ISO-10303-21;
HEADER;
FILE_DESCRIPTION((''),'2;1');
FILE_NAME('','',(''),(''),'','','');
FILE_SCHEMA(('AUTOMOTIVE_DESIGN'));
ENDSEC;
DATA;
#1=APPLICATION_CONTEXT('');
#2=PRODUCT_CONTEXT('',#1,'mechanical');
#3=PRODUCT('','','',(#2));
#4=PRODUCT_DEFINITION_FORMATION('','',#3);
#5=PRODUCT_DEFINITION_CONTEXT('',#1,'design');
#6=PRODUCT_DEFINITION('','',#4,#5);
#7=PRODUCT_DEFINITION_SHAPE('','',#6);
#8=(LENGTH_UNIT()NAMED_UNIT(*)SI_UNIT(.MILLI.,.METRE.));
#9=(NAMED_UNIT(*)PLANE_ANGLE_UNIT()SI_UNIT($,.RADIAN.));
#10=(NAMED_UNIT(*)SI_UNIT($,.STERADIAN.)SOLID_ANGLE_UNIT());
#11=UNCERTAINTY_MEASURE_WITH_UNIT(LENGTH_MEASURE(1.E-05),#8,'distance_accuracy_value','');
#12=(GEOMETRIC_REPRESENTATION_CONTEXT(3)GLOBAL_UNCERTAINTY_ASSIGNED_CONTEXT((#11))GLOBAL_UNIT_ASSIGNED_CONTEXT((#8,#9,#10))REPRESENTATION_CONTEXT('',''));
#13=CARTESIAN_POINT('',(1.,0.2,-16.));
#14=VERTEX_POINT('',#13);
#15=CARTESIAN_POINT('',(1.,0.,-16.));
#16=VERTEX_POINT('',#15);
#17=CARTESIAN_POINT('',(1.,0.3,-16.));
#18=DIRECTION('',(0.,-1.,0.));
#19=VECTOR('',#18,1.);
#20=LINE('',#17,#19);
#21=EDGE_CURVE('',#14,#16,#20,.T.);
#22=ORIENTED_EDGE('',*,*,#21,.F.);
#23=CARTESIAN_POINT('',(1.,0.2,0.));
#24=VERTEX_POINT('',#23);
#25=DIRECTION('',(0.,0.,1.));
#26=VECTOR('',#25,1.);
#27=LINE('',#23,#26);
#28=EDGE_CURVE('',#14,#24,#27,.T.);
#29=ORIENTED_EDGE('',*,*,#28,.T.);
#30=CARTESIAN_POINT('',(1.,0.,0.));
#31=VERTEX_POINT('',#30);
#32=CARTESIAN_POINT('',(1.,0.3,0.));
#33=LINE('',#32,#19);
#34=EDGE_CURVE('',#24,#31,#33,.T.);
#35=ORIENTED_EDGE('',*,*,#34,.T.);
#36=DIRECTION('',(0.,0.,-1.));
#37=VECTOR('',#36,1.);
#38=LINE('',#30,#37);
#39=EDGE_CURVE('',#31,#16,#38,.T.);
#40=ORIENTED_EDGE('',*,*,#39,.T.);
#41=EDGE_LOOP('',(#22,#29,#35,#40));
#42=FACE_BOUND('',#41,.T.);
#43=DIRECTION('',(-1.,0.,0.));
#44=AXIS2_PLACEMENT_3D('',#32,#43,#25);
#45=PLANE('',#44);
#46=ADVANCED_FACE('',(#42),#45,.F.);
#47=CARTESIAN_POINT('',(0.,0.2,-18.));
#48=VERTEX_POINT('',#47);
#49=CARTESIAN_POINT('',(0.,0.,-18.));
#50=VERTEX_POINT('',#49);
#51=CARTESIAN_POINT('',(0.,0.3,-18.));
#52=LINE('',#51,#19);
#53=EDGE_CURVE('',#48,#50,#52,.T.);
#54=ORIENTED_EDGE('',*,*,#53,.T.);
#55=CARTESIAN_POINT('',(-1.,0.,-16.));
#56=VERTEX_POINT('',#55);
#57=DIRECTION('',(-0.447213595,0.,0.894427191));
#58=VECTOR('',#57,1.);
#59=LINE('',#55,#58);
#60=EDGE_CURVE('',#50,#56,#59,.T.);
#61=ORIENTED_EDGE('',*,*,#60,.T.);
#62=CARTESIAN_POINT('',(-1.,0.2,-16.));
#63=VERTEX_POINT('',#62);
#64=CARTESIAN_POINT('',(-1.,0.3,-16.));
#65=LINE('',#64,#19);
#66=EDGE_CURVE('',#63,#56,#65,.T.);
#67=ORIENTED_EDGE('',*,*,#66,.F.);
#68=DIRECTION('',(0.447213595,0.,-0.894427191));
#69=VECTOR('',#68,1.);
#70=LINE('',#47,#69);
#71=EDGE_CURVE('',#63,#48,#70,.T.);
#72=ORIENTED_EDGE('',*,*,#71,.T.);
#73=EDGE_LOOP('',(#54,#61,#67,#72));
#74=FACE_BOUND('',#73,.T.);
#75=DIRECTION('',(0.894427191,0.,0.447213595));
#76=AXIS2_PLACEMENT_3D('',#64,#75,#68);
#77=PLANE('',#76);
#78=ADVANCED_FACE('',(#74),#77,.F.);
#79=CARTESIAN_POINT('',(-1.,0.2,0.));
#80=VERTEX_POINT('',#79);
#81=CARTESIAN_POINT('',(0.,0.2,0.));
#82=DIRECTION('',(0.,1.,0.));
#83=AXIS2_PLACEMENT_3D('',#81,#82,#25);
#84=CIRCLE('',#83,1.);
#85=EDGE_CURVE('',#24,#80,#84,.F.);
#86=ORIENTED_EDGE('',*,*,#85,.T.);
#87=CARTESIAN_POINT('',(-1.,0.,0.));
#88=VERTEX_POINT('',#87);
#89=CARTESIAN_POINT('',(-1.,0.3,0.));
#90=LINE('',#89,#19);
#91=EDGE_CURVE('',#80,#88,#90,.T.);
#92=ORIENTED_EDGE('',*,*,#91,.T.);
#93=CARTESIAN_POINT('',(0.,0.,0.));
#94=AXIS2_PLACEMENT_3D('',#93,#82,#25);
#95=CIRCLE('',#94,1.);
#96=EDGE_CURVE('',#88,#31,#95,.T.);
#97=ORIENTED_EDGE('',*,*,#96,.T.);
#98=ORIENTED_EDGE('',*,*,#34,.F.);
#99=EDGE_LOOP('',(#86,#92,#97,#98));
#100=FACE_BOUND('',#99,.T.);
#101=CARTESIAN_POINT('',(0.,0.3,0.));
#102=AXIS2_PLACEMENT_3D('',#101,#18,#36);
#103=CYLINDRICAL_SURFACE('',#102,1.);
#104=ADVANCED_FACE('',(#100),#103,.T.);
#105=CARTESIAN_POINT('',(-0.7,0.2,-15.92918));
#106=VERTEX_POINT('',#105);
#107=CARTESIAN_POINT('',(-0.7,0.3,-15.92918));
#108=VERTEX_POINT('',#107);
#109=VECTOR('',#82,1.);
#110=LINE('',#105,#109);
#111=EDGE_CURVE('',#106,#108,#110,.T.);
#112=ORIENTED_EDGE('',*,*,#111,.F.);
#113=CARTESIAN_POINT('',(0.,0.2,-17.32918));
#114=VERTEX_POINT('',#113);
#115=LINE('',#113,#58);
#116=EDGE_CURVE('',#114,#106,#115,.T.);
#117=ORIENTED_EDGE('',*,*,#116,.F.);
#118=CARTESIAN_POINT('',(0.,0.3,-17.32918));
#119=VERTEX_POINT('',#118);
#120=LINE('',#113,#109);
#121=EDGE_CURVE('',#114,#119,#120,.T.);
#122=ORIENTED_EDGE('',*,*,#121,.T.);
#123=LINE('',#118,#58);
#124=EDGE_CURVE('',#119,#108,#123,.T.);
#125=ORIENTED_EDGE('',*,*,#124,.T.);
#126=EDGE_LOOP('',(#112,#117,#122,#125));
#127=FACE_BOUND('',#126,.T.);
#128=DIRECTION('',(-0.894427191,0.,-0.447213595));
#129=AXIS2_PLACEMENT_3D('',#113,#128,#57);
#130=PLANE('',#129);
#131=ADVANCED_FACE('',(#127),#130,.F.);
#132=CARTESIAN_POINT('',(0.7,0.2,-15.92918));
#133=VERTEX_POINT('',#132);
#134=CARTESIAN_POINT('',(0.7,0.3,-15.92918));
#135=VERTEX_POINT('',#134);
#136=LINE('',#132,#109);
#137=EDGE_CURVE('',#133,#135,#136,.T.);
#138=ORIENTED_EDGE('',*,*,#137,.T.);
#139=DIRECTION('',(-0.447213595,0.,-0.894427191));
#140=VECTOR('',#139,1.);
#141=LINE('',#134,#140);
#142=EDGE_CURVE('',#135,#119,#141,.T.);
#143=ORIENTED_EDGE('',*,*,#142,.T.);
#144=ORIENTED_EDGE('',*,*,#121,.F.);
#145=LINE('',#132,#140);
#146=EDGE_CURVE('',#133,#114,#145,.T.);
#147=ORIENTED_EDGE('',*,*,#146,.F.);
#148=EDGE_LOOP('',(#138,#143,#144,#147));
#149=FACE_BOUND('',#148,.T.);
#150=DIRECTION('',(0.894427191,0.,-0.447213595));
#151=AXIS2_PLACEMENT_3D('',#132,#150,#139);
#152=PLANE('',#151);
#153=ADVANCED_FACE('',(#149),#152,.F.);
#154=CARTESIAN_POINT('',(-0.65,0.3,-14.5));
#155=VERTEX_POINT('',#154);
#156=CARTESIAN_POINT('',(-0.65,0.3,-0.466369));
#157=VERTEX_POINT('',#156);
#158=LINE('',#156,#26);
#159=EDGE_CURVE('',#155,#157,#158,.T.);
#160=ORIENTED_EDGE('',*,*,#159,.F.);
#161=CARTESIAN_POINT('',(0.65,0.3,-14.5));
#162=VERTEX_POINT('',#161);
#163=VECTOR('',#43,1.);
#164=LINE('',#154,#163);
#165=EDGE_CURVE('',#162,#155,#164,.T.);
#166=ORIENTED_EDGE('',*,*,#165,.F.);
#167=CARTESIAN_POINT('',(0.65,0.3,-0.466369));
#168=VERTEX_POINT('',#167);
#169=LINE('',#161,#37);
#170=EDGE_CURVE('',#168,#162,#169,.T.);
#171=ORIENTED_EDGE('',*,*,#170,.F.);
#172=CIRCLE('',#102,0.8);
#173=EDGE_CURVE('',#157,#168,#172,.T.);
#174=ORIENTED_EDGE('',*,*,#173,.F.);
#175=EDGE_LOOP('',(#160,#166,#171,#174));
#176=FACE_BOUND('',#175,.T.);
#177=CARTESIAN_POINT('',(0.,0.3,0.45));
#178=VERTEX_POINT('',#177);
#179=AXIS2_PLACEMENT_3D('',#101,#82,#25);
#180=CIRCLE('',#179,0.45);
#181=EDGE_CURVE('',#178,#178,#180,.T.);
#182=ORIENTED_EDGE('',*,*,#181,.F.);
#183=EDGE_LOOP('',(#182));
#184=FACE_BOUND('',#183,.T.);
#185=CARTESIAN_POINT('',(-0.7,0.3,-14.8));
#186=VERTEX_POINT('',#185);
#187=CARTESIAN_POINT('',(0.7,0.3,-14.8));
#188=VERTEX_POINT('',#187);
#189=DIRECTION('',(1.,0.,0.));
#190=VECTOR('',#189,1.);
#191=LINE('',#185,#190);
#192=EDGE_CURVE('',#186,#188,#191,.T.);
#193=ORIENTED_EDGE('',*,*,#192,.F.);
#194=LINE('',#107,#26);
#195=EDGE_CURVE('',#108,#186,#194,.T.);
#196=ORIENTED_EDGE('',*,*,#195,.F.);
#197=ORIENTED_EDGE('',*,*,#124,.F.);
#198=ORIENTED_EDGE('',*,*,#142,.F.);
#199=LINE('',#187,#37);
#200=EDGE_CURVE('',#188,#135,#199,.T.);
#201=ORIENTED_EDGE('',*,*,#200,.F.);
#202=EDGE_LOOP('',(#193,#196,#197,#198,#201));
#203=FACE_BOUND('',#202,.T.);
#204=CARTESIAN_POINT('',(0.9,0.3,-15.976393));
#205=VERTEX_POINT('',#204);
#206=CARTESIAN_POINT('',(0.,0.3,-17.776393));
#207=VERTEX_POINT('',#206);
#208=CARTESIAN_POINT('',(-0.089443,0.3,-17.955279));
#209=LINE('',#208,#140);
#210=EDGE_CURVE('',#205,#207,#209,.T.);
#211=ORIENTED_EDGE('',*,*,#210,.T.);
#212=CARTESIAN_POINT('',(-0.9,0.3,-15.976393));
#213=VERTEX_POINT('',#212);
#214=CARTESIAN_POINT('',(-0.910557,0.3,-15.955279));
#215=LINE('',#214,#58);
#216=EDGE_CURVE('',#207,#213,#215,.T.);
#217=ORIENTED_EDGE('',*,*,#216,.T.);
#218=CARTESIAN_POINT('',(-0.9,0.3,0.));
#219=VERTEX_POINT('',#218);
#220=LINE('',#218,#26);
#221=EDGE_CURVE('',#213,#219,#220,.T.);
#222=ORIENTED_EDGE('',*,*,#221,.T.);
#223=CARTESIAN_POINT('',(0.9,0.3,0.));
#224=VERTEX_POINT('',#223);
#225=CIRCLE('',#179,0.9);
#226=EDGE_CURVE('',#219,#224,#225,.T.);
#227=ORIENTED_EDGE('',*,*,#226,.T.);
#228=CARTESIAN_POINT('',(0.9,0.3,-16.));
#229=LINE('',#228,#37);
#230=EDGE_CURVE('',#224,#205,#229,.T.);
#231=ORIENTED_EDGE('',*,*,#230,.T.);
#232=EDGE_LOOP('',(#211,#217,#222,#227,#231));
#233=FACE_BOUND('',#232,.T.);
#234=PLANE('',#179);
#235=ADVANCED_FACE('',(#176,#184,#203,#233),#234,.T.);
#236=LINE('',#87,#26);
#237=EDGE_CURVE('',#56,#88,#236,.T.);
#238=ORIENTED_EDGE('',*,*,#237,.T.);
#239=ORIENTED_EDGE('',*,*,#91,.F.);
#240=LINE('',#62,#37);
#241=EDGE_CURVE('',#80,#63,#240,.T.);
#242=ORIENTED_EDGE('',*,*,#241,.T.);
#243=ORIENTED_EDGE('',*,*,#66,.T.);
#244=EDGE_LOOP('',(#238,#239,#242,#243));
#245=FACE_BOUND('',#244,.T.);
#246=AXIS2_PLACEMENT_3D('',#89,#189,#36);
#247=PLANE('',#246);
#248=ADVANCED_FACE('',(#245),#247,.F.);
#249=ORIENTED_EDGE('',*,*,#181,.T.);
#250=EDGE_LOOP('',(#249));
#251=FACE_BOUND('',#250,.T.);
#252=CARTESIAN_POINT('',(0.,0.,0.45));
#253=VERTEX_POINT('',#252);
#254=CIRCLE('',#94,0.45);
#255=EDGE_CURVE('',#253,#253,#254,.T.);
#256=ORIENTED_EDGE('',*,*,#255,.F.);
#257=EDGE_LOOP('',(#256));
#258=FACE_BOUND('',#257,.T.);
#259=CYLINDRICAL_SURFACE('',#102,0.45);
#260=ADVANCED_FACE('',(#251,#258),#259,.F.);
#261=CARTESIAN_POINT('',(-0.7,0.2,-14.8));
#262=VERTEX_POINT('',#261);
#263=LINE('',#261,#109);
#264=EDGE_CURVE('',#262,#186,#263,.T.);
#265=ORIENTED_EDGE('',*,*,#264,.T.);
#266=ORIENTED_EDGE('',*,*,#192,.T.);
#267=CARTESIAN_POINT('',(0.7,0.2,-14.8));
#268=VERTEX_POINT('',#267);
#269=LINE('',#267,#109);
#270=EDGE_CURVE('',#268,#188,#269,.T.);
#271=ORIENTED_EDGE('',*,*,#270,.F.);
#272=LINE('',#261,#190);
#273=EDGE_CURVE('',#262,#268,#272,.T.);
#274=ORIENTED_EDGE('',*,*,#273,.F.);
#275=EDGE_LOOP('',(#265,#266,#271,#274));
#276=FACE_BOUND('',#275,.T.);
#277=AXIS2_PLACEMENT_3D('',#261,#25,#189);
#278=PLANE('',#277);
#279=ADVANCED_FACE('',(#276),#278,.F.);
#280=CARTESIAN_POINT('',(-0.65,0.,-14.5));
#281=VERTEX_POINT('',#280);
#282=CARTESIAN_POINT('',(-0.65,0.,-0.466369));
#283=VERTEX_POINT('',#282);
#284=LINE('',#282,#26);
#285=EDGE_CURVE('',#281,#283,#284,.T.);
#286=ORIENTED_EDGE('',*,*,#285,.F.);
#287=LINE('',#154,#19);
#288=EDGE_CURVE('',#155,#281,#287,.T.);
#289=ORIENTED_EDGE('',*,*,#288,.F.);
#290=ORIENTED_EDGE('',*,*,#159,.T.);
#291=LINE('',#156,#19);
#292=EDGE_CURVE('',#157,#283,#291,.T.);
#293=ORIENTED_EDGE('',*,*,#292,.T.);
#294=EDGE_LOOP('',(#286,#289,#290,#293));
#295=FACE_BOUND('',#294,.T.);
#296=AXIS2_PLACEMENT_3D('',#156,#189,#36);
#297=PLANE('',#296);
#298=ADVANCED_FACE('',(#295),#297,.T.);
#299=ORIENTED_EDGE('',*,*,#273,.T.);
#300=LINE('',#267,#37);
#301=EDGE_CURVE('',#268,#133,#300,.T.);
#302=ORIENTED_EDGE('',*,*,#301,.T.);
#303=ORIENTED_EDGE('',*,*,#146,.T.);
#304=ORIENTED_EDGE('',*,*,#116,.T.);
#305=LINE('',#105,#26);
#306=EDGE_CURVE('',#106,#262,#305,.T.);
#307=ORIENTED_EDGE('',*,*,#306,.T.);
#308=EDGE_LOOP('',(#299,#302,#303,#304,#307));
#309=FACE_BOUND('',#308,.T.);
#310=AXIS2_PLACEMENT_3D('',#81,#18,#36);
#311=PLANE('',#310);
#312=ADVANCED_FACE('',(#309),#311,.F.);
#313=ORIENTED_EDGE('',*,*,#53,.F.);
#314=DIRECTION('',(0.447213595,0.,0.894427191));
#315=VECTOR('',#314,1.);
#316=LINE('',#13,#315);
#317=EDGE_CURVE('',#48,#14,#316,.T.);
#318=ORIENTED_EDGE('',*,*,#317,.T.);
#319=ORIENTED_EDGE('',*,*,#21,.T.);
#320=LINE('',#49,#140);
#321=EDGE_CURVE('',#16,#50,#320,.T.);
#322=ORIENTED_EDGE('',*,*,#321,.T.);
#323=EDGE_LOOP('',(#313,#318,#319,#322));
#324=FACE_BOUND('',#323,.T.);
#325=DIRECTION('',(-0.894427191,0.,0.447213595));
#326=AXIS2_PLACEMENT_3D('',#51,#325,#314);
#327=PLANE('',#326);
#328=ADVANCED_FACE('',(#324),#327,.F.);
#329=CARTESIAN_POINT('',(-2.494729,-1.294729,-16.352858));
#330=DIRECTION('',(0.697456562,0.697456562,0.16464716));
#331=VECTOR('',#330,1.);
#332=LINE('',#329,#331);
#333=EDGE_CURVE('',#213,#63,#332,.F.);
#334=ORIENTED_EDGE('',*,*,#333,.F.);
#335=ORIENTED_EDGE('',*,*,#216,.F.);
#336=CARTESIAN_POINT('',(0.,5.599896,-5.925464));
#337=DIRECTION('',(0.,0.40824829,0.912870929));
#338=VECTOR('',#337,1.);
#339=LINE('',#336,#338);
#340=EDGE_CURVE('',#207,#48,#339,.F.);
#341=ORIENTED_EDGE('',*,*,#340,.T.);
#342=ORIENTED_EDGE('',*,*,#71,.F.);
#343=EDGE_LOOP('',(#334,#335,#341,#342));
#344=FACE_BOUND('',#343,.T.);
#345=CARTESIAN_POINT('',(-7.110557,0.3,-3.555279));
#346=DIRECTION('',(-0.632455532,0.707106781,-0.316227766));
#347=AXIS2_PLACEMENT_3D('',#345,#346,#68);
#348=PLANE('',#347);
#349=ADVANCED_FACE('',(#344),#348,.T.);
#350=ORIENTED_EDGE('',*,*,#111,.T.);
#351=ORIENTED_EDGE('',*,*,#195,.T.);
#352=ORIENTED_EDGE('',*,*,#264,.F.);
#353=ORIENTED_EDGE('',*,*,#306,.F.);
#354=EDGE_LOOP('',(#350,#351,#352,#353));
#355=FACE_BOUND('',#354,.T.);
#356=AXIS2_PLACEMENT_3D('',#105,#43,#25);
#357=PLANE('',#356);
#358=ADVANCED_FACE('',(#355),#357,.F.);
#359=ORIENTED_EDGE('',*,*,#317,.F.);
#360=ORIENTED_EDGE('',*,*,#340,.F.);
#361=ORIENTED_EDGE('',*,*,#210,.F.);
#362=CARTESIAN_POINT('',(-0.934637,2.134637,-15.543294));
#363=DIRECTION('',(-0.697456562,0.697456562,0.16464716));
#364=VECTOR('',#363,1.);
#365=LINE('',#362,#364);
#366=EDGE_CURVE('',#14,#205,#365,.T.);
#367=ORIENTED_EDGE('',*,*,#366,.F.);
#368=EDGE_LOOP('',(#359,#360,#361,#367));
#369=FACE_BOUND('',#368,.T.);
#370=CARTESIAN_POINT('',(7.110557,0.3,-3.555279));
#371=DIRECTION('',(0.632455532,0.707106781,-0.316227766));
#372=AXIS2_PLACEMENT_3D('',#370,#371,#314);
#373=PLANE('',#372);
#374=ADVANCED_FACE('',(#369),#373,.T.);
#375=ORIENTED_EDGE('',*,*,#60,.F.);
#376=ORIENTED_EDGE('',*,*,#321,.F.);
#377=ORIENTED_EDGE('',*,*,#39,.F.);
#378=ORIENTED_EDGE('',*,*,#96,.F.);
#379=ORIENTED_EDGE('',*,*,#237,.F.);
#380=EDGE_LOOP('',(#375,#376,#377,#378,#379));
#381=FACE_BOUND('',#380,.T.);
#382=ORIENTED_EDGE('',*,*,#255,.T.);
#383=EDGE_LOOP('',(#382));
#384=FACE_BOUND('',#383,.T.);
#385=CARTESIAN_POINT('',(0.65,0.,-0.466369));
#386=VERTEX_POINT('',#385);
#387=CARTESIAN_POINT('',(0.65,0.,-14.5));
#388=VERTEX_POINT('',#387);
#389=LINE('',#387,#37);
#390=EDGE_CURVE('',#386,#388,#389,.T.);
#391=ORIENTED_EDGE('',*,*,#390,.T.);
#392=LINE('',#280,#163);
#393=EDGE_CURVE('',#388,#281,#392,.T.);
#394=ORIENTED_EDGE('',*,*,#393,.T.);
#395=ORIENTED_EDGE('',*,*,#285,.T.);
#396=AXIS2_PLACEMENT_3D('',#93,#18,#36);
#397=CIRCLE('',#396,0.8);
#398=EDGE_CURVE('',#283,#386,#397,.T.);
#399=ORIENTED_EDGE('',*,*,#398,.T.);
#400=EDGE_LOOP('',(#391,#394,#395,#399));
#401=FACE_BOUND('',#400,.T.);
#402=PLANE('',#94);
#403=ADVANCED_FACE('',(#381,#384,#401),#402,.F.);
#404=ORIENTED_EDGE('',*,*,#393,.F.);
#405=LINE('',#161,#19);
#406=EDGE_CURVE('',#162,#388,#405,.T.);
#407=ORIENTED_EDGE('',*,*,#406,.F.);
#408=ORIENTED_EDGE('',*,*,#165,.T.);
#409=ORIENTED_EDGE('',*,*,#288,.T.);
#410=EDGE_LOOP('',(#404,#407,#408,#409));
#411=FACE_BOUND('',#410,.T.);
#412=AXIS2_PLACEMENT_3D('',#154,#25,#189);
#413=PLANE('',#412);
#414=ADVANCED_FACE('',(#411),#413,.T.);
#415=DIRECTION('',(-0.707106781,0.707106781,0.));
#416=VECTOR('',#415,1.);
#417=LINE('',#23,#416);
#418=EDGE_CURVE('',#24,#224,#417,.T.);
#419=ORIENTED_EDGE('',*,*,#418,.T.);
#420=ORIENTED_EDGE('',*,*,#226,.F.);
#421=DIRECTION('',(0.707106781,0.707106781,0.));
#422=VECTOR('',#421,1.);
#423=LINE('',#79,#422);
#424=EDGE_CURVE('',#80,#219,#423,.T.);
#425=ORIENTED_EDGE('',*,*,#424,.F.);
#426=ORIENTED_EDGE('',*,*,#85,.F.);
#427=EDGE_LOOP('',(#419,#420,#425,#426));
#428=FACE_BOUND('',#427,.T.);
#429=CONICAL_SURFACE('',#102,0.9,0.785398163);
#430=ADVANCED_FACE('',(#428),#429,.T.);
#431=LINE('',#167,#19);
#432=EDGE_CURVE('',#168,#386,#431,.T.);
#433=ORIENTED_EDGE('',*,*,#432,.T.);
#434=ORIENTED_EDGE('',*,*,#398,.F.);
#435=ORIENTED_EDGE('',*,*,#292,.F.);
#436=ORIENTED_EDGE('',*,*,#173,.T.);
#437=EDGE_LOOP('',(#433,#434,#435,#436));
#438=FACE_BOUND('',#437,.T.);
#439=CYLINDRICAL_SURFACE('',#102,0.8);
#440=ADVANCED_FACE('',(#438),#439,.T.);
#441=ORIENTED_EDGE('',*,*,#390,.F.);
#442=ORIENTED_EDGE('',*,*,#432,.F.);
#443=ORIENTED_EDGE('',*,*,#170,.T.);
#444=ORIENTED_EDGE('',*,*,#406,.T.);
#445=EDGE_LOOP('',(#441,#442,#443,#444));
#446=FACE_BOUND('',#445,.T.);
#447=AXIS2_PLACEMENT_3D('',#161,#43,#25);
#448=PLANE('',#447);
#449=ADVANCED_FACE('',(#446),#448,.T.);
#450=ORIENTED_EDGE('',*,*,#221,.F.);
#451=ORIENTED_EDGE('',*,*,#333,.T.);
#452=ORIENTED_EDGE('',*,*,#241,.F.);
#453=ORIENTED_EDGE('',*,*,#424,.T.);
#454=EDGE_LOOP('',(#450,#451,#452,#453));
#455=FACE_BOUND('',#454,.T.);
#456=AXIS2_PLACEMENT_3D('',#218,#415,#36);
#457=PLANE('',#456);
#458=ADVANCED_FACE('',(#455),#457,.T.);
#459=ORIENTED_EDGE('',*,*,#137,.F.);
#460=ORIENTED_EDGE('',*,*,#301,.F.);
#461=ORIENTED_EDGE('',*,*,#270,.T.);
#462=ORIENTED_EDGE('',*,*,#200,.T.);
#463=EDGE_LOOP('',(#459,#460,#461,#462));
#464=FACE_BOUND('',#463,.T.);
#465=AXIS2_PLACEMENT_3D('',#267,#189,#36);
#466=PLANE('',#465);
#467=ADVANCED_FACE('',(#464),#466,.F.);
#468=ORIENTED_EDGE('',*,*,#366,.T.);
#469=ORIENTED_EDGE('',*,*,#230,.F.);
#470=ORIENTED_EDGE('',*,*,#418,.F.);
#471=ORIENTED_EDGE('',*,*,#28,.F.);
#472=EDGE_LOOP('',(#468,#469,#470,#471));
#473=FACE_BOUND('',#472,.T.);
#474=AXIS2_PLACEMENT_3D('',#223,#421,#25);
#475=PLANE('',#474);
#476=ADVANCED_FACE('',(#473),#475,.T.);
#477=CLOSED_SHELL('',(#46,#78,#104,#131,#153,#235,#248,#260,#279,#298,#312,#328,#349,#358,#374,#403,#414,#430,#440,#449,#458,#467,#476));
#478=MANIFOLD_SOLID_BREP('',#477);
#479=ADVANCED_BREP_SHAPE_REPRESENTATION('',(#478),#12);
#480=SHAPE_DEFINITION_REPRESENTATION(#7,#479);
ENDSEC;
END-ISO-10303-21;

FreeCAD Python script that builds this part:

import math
import FreeCAD as App
import Part
import Sketcher

V = App.Vector


def edges_at(feature, points):
    """Names of the edges that pass closest to the given points."""
    edges = feature.Shape.Edges
    near = lambda p: min(range(len(edges)), key=lambda i: edges[i].distToShape(Part.Vertex(*p))[0])
    return sorted({f"Edge{near(p) + 1}" for p in points})


def add_polygon(sketch, points):
    """Adds a closed chain of lines whose ends are joined by coincident constraints."""
    first, n = sketch.GeometryCount, len(points)
    for a, b in zip(points, points[1:] + points[:1]):
        sketch.addGeometry(Part.LineSegment(App.Vector(*a, 0), App.Vector(*b, 0)), False)
    for i in range(n):
        sketch.addConstraint(Sketcher.Constraint("Coincident", first + i, 2, first + (i + 1) % n, 1))

doc = App.newDocument("Part")
body = doc.addObject("PartDesign::Body", "Body")

sketch1 = body.newObject("Sketcher::SketchObject", "Sketch")
sketch1.AttachmentSupport = (doc.getObject("XZ_Plane"), [""])
sketch1.MapMode = "FlatFace"
sketch1.addGeometry([
    Part.LineSegment(V(-1, -16, 0), V(-1, 0, 0)),
    Part.ArcOfCircle(Part.Circle(V(0, 0, 0), V(0, 0, 1), 1), math.radians(0), math.radians(180)),
    Part.LineSegment(V(1, 0, 0), V(1, -16, 0)),
    Part.LineSegment(V(1, -16, 0), V(0, -18, 0)),
    Part.LineSegment(V(0, -18, 0), V(-1, -16, 0)),
    Part.Circle(V(0, 0, 0), V(0, 0, 1), 0.45),
    Part.LineSegment(V(-0.65, -0.466369, 0), V(-0.65, -14.5, 0)),
    Part.LineSegment(V(-0.65, -14.5, 0), V(0.65, -14.5, 0)),
    Part.LineSegment(V(0.65, -14.5, 0), V(0.65, -0.466369, 0)),
    Part.ArcOfCircle(Part.Circle(V(0, 0, 0), V(0, 0, 1), 0.8), math.radians(-144.340912), math.radians(-35.659088)),
], False)
sketch1.addConstraint([
    Sketcher.Constraint("Tangent", 0, 2, 1, 2),
    Sketcher.Constraint("Tangent", 1, 1, 2, 1),
    Sketcher.Constraint("Coincident", 2, 2, 3, 1),
    Sketcher.Constraint("Coincident", 3, 2, 4, 1),
    Sketcher.Constraint("Coincident", 4, 2, 0, 1),
    Sketcher.Constraint("Coincident", 6, 2, 7, 1),
    Sketcher.Constraint("Coincident", 7, 2, 8, 1),
    Sketcher.Constraint("Coincident", 8, 2, 9, 2),
    Sketcher.Constraint("Coincident", 9, 1, 6, 1),
    Sketcher.Constraint("Vertical", 0),
    Sketcher.Constraint("Vertical", 2),
    Sketcher.Constraint("Vertical", 6),
    Sketcher.Constraint("Horizontal", 7),
    Sketcher.Constraint("Vertical", 8),
    Sketcher.Constraint("Coincident", 1, 3, -1, 1),
    Sketcher.Constraint("Coincident", 5, 3, -1, 1),
    Sketcher.Constraint("Coincident", 9, 3, -1, 1),
    Sketcher.Constraint("PointOnObject", 3, 2, -2),
    Sketcher.Constraint("Horizontal", 2, 2, 4, 2),
    Sketcher.Constraint("Horizontal", 8, 2, 9, 1),
    Sketcher.Constraint("Radius", 1, 1.0),
    Sketcher.Constraint("Diameter", 5, 0.9),
    Sketcher.Constraint("Radius", 9, 0.8),
    Sketcher.Constraint("DistanceY", 0, 1, 0, 2, 16.0),
    Sketcher.Constraint("DistanceX", 7, 1, 7, 2, 1.3),
    Sketcher.Constraint("DistanceY", 3, 2, -1, 1, 18.0),
    Sketcher.Constraint("DistanceY", 6, 2, -1, 1, 14.5),
])
pad1 = body.newObject("PartDesign::Pad", "Pad")
pad1.Profile = sketch1
pad1.Length = 0.3
pad1.Reversed = True

sketch2 = body.newObject("Sketcher::SketchObject", "Sketch001")
sketch2.AttachmentSupport = (doc.getObject("XZ_Plane"), [""])
sketch2.MapMode = "FlatFace"
sketch2.AttachmentOffset = App.Placement(V(0, 0, -0.3), App.Rotation())
add_polygon(sketch2, [(-0.7, -15.92918), (-0.7, -14.8), (0.7, -14.8), (0.7, -15.92918), (0, -17.32918)])
sketch2.addConstraint([
    Sketcher.Constraint("Vertical", 0),
    Sketcher.Constraint("Horizontal", 1),
    Sketcher.Constraint("Vertical", 2),
    Sketcher.Constraint("Symmetric", 2, 2, 4, 2, -2),
    Sketcher.Constraint("PointOnObject", 3, 2, -2),
    Sketcher.Constraint("DistanceX", 1, 1, 1, 2, 1.4),
    Sketcher.Constraint("DistanceY", 0, 2, -1, 1, 14.8),
    Sketcher.Constraint("DistanceY", 3, 2, 2, 2, 1.4),
    Sketcher.Constraint("DistanceY", 0, 1, 0, 2, 1.12918),
])
pocket1 = body.newObject("PartDesign::Pocket", "Pocket")
pocket1.Profile = sketch2
pocket1.Length = 0.1
pocket1.Reversed = True
doc.recompute()

chamfer = body.newObject("PartDesign::Chamfer", "Chamfer")
chamfer.Base = (pocket1, edges_at(pocket1, [
    (0.5, 0.3, -17),
    (-0.5, 0.3, -17),
    (-1, 0.3, -8),
    (0, 0.3, 1),
    (1, 0.3, -8),
]))
chamfer.Size = 0.1

doc.recompute()
